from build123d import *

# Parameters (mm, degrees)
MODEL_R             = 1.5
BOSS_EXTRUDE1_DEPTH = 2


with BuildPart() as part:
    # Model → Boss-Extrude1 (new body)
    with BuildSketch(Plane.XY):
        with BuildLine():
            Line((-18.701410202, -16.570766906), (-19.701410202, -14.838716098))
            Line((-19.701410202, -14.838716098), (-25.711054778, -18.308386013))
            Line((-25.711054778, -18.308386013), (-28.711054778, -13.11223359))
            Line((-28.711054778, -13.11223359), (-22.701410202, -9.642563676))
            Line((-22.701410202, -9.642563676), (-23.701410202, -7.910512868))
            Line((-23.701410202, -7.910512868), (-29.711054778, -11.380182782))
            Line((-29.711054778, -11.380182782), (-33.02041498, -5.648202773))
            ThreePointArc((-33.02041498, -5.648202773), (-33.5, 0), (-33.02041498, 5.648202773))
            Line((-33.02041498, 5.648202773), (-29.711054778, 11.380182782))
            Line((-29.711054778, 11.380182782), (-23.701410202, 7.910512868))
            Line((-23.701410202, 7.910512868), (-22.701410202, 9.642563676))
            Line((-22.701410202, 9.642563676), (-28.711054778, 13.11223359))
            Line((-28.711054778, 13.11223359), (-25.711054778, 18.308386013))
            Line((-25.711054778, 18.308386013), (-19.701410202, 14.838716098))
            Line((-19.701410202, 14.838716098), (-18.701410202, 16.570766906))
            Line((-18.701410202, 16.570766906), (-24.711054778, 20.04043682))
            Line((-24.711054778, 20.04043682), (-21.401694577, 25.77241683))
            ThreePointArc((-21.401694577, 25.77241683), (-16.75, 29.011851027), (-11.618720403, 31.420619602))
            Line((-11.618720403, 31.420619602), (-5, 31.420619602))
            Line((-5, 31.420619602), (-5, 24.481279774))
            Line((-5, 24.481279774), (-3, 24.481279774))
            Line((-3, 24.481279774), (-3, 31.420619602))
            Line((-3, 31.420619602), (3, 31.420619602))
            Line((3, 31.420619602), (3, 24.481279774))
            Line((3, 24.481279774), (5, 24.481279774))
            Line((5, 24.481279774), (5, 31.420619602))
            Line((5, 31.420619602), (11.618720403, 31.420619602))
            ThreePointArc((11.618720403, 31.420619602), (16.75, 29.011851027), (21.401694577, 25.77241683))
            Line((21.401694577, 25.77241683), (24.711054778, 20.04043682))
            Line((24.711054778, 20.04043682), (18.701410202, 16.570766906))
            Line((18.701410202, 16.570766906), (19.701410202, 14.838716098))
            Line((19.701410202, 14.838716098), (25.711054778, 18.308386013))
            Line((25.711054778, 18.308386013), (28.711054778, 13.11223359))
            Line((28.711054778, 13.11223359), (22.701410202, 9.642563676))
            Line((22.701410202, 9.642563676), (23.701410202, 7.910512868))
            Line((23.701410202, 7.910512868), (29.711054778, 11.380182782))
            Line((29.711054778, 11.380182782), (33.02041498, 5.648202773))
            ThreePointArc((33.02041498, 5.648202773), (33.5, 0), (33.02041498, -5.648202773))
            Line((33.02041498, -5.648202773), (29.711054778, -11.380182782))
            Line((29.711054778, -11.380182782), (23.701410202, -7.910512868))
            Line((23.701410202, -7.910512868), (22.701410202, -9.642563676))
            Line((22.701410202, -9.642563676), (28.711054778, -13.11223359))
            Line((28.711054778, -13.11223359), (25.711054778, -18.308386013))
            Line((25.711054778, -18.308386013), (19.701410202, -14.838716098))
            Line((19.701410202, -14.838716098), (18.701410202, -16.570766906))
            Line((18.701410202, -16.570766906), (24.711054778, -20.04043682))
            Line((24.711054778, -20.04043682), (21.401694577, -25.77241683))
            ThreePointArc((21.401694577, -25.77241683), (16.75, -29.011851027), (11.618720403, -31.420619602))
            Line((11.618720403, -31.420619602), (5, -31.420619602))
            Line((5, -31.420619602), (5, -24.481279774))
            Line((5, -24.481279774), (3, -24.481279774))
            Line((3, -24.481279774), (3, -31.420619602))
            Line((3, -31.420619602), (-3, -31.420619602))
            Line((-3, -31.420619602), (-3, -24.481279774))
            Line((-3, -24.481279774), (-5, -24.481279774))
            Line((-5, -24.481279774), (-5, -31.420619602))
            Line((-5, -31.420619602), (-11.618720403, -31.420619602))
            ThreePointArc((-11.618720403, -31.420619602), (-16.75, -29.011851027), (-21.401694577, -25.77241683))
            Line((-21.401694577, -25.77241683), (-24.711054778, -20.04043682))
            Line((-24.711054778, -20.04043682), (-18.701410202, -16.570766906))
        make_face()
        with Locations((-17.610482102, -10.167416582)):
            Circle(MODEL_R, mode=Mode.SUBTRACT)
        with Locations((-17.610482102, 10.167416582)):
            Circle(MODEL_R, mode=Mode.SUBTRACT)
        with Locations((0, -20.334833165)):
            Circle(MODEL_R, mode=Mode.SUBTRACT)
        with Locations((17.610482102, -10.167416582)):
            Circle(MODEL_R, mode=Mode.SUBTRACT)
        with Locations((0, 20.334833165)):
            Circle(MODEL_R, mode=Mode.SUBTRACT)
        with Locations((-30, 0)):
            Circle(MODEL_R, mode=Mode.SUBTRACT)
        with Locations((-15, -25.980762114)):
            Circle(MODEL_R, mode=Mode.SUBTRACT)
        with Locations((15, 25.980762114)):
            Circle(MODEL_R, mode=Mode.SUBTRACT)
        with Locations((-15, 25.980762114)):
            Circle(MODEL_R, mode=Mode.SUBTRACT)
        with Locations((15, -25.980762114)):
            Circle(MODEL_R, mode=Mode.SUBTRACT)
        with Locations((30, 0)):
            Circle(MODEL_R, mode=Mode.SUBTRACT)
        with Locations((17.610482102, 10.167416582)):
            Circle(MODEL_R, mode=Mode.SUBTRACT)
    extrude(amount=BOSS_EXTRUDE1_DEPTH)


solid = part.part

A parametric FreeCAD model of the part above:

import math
import FreeCAD as App
import Part
import Sketcher
Q = App.Units.Quantity

doc = App.newDocument("Part")
body = doc.addObject("PartDesign::Body", "Body")

sketch1 = body.newObject("Sketcher::SketchObject", "Sketch")
sketch1.AttachmentSupport = (doc.getObject("XY_Plane"), [""])
sketch1.MapMode = "FlatFace"
sketch1.addGeometry([
    Part.LineSegment(App.Vector(-19.70141, -14.838716, 0), App.Vector(-18.70141, -16.570767, 0)),
    Part.LineSegment(App.Vector(-18.70141, -16.570767, 0), App.Vector(-24.711055, -20.040437, 0)),
    Part.LineSegment(App.Vector(-24.711055, -20.040437, 0), App.Vector(-21.401695, -25.772417, 0)),
    Part.ArcOfCircle(Part.Circle(App.Vector(0, 0, 0), App.Vector(0, 0, 1), 33.5), math.radians(-129.706608), math.radians(-110.293392)),
    Part.LineSegment(App.Vector(-11.61872, -31.42062, 0), App.Vector(-5, -31.42062, 0)),
    Part.LineSegment(App.Vector(-5, -31.42062, 0), App.Vector(-5, -24.48128, 0)),
    Part.LineSegment(App.Vector(-5, -24.48128, 0), App.Vector(-3, -24.48128, 0)),
    Part.LineSegment(App.Vector(-3, -24.48128, 0), App.Vector(-3, -31.42062, 0)),
    Part.LineSegment(App.Vector(-3, -31.42062, 0), App.Vector(3, -31.42062, 0)),
    Part.LineSegment(App.Vector(3, -31.42062, 0), App.Vector(3, -24.48128, 0)),
    Part.LineSegment(App.Vector(3, -24.48128, 0), App.Vector(5, -24.48128, 0)),
    Part.LineSegment(App.Vector(5, -24.48128, 0), App.Vector(5, -31.42062, 0)),
    Part.LineSegment(App.Vector(5, -31.42062, 0), App.Vector(11.61872, -31.42062, 0)),
    Part.ArcOfCircle(Part.Circle(App.Vector(0, 0, 0), App.Vector(0, 0, 1), 33.5), math.radians(-69.706608), math.radians(-50.293392)),
    Part.LineSegment(App.Vector(21.401695, -25.772417, 0), App.Vector(24.711055, -20.040437, 0)),
    Part.LineSegment(App.Vector(24.711055, -20.040437, 0), App.Vector(18.70141, -16.570767, 0)),
    Part.LineSegment(App.Vector(18.70141, -16.570767, 0), App.Vector(19.70141, -14.838716, 0)),
    Part.LineSegment(App.Vector(19.70141, -14.838716, 0), App.Vector(25.711055, -18.308386, 0)),
    Part.LineSegment(App.Vector(25.711055, -18.308386, 0), App.Vector(28.711055, -13.112234, 0)),
    Part.LineSegment(App.Vector(28.711055, -13.112234, 0), App.Vector(22.70141, -9.642564, 0)),
    Part.LineSegment(App.Vector(22.70141, -9.642564, 0), App.Vector(23.70141, -7.910513, 0)),
    Part.LineSegment(App.Vector(23.70141, -7.910513, 0), App.Vector(29.711055, -11.380183, 0)),
    Part.LineSegment(App.Vector(29.711055, -11.380183, 0), App.Vector(33.020415, -5.648203, 0)),
    Part.ArcOfCircle(Part.Circle(App.Vector(0, 0, 0), App.Vector(0, 0, 1), 33.5), math.radians(-9.706608), math.radians(9.706608)),
    Part.LineSegment(App.Vector(33.020415, 5.648203, 0), App.Vector(29.711055, 11.380183, 0)),
    Part.LineSegment(App.Vector(29.711055, 11.380183, 0), App.Vector(23.70141, 7.910513, 0)),
    Part.LineSegment(App.Vector(23.70141, 7.910513, 0), App.Vector(22.70141, 9.642564, 0)),
    Part.LineSegment(App.Vector(22.70141, 9.642564, 0), App.Vector(28.711055, 13.112234, 0)),
    Part.LineSegment(App.Vector(28.711055, 13.112234, 0), App.Vector(25.711055, 18.308386, 0)),
    Part.LineSegment(App.Vector(25.711055, 18.308386, 0), App.Vector(19.70141, 14.838716, 0)),
    Part.LineSegment(App.Vector(19.70141, 14.838716, 0), App.Vector(18.70141, 16.570767, 0)),
    Part.LineSegment(App.Vector(18.70141, 16.570767, 0), App.Vector(24.711055, 20.040437, 0)),
    Part.LineSegment(App.Vector(24.711055, 20.040437, 0), App.Vector(21.401695, 25.772417, 0)),
    Part.ArcOfCircle(Part.Circle(App.Vector(0, 0, 0), App.Vector(0, 0, 1), 33.5), math.radians(50.293392), math.radians(69.706608)),
    Part.LineSegment(App.Vector(11.61872, 31.42062, 0), App.Vector(5, 31.42062, 0)),
    Part.LineSegment(App.Vector(5, 31.42062, 0), App.Vector(5, 24.48128, 0)),
    Part.LineSegment(App.Vector(5, 24.48128, 0), App.Vector(3, 24.48128, 0)),
    Part.LineSegment(App.Vector(3, 24.48128, 0), App.Vector(3, 31.42062, 0)),
    Part.LineSegment(App.Vector(3, 31.42062, 0), App.Vector(-3, 31.42062, 0)),
    Part.LineSegment(App.Vector(-3, 31.42062, 0), App.Vector(-3, 24.48128, 0)),
    Part.LineSegment(App.Vector(-3, 24.48128, 0), App.Vector(-5, 24.48128, 0)),
    Part.LineSegment(App.Vector(-5, 24.48128, 0), App.Vector(-5, 31.42062, 0)),
    Part.LineSegment(App.Vector(-5, 31.42062, 0), App.Vector(-11.61872, 31.42062, 0)),
    Part.ArcOfCircle(Part.Circle(App.Vector(0, 0, 0), App.Vector(0, 0, 1), 33.5), math.radians(110.293392), math.radians(129.706608)),
    Part.LineSegment(App.Vector(-21.401695, 25.772417, 0), App.Vector(-24.711055, 20.040437, 0)),
    Part.LineSegment(App.Vector(-24.711055, 20.040437, 0), App.Vector(-18.70141, 16.570767, 0)),
    Part.LineSegment(App.Vector(-18.70141, 16.570767, 0), App.Vector(-19.70141, 14.838716, 0)),
    Part.LineSegment(App.Vector(-19.70141, 14.838716, 0), App.Vector(-25.711055, 18.308386, 0)),
    Part.LineSegment(App.Vector(-25.711055, 18.308386, 0), App.Vector(-28.711055, 13.112234, 0)),
    Part.LineSegment(App.Vector(-28.711055, 13.112234, 0), App.Vector(-22.70141, 9.642564, 0)),
    Part.LineSegment(App.Vector(-22.70141, 9.642564, 0), App.Vector(-23.70141, 7.910513, 0)),
    Part.LineSegment(App.Vector(-23.70141, 7.910513, 0), App.Vector(-29.711055, 11.380183, 0)),
    Part.LineSegment(App.Vector(-29.711055, 11.380183, 0), App.Vector(-33.020415, 5.648203, 0)),
    Part.ArcOfCircle(Part.Circle(App.Vector(0, 0, 0), App.Vector(0, 0, 1), 33.5), math.radians(170.293392), math.radians(189.706608)),
    Part.LineSegment(App.Vector(-33.020415, -5.648203, 0), App.Vector(-29.711055, -11.380183, 0)),
    Part.LineSegment(App.Vector(-29.711055, -11.380183, 0), App.Vector(-23.70141, -7.910513, 0)),
    Part.LineSegment(App.Vector(-23.70141, -7.910513, 0), App.Vector(-22.70141, -9.642564, 0)),
    Part.LineSegment(App.Vector(-22.70141, -9.642564, 0), App.Vector(-28.711055, -13.112234, 0)),
    Part.LineSegment(App.Vector(-28.711055, -13.112234, 0), App.Vector(-25.711055, -18.308386, 0)),
    Part.LineSegment(App.Vector(-25.711055, -18.308386, 0), App.Vector(-19.70141, -14.838716, 0)),
    Part.Circle(App.Vector(15, -25.980762, 0), App.Vector(0, 0, 1), 1.5),
    Part.Circle(App.Vector(17.610482, -10.167417, 0), App.Vector(0, 0, 1), 1.5),
    Part.Circle(App.Vector(-15, -25.980762, 0), App.Vector(0, 0, 1), 1.5),
    Part.Circle(App.Vector(0, -20.334833, 0), App.Vector(0, 0, 1), 1.5),
    Part.Circle(App.Vector(-17.610482, -10.167417, 0), App.Vector(0, 0, 1), 1.5),
    Part.Circle(App.Vector(30, 0, 0), App.Vector(0, 0, 1), 1.5),
    Part.Circle(App.Vector(17.610482, 10.167417, 0), App.Vector(0, 0, 1), 1.5),
    Part.Circle(App.Vector(15, 25.980762, 0), App.Vector(0, 0, 1), 1.5),
    Part.Circle(App.Vector(-30, 0, 0), App.Vector(0, 0, 1), 1.5),
    Part.Circle(App.Vector(-17.610482, 10.167417, 0), App.Vector(0, 0, 1), 1.5),
    Part.Circle(App.Vector(0, 20.334833, 0), App.Vector(0, 0, 1), 1.5),
    Part.Circle(App.Vector(-15, 25.980762, 0), App.Vector(0, 0, 1), 1.5),
], False)
sketch1.addConstraint([
    Sketcher.Constraint("Coincident", 0, 2, 1, 1),
    Sketcher.Constraint("Coincident", 1, 2, 2, 1),
    Sketcher.Constraint("Coincident", 2, 2, 3, 1),
    Sketcher.Constraint("Coincident", 3, 2, 4, 1),
    Sketcher.Constraint("Coincident", 4, 2, 5, 1),
    Sketcher.Constraint("Coincident", 5, 2, 6, 1),
    Sketcher.Constraint("Coincident", 6, 2, 7, 1),
    Sketcher.Constraint("Coincident", 7, 2, 8, 1),
    Sketcher.Constraint("Coincident", 8, 2, 9, 1),
    Sketcher.Constraint("Coincident", 9, 2, 10, 1),
    Sketcher.Constraint("Coincident", 10, 2, 11, 1),
    Sketcher.Constraint("Coincident", 11, 2, 12, 1),
    Sketcher.Constraint("Coincident", 12, 2, 13, 1),
    Sketcher.Constraint("Coincident", 13, 2, 14, 1),
    Sketcher.Constraint("Coincident", 14, 2, 15, 1),
    Sketcher.Constraint("Coincident", 15, 2, 16, 1),
    Sketcher.Constraint("Coincident", 16, 2, 17, 1),
    Sketcher.Constraint("Coincident", 17, 2, 18, 1),
    Sketcher.Constraint("Coincident", 18, 2, 19, 1),
    Sketcher.Constraint("Coincident", 19, 2, 20, 1),
    Sketcher.Constraint("Coincident", 20, 2, 21, 1),
    Sketcher.Constraint("Coincident", 21, 2, 22, 1),
    Sketcher.Constraint("Coincident", 22, 2, 23, 1),
    Sketcher.Constraint("Coincident", 23, 2, 24, 1),
    Sketcher.Constraint("Coincident", 24, 2, 25, 1),
    Sketcher.Constraint("Coincident", 25, 2, 26, 1),
    Sketcher.Constraint("Coincident", 26, 2, 27, 1),
    Sketcher.Constraint("Coincident", 27, 2, 28, 1),
    Sketcher.Constraint("Coincident", 28, 2, 29, 1),
    Sketcher.Constraint("Coincident", 29, 2, 30, 1),
    Sketcher.Constraint("Coincident", 30, 2, 31, 1),
    Sketcher.Constraint("Coincident", 31, 2, 32, 1),
    Sketcher.Constraint("Coincident", 32, 2, 33, 1),
    Sketcher.Constraint("Coincident", 33, 2, 34, 1),
    Sketcher.Constraint("Coincident", 34, 2, 35, 1),
    Sketcher.Constraint("Coincident", 35, 2, 36, 1),
    Sketcher.Constraint("Coincident", 36, 2, 37, 1),
    Sketcher.Constraint("Coincident", 37, 2, 38, 1),
    Sketcher.Constraint("Coincident", 38, 2, 39, 1),
    Sketcher.Constraint("Coincident", 39, 2, 40, 1),
    Sketcher.Constraint("Coincident", 40, 2, 41, 1),
    Sketcher.Constraint("Coincident", 41, 2, 42, 1),
    Sketcher.Constraint("Coincident", 42, 2, 43, 1),
    Sketcher.Constraint("Coincident", 43, 2, 44, 1),
    Sketcher.Constraint("Coincident", 44, 2, 45, 1),
    Sketcher.Constraint("Coincident", 45, 2, 46, 1),
    Sketcher.Constraint("Coincident", 46, 2, 47, 1),
    Sketcher.Constraint("Coincident", 47, 2, 48, 1),
    Sketcher.Constraint("Coincident", 48, 2, 49, 1),
    Sketcher.Constraint("Coincident", 49, 2, 50, 1),
    Sketcher.Constraint("Coincident", 50, 2, 51, 1),
    Sketcher.Constraint("Coincident", 51, 2, 52, 1),
    Sketcher.Constraint("Coincident", 52, 2, 53, 1),
    Sketcher.Constraint("Coincident", 53, 2, 54, 1),
    Sketcher.Constraint("Coincident", 54, 2, 55, 1),
    Sketcher.Constraint("Coincident", 55, 2, 56, 1),
    Sketcher.Constraint("Coincident", 56, 2, 57, 1),
    Sketcher.Constraint("Coincident", 57, 2, 58, 1),
    Sketcher.Constraint("Coincident", 58, 2, 59, 1),
    Sketcher.Constraint("Coincident", 59, 2, 0, 1),
    Sketcher.Constraint("Horizontal", 4),
    Sketcher.Constraint("Vertical", 5),
    Sketcher.Constraint("Horizontal", 6),
    Sketcher.Constraint("Vertical", 7),
    Sketcher.Constraint("Horizontal", 8),
    Sketcher.Constraint("Vertical", 9),
    Sketcher.Constraint("Horizontal", 10),
    Sketcher.Constraint("Vertical", 11),
    Sketcher.Constraint("Horizontal", 12),
    Sketcher.Constraint("Horizontal", 34),
    Sketcher.Constraint("Vertical", 35),
    Sketcher.Constraint("Horizontal", 36),
    Sketcher.Constraint("Vertical", 37),
    Sketcher.Constraint("Horizontal", 38),
    Sketcher.Constraint("Vertical", 39),
    Sketcher.Constraint("Horizontal", 40),
    Sketcher.Constraint("Vertical", 41),
    Sketcher.Constraint("Horizontal", 42),
    Sketcher.Constraint("Coincident", 3, 3, -1, 1),
    Sketcher.Constraint("Coincident", 13, 3, -1, 1),
    Sketcher.Constraint("Coincident", 23, 3, -1, 1),
    Sketcher.Constraint("Coincident", 33, 3, -1, 1),
    Sketcher.Constraint("Coincident", 43, 3, -1, 1),
    Sketcher.Constraint("Coincident", 53, 3, -1, 1),
    Sketcher.Constraint("Equal", 3, 13),
    Sketcher.Constraint("Equal", 13, 23),
    Sketcher.Constraint("Equal", 23, 33),
    Sketcher.Constraint("Equal", 33, 43),
    Sketcher.Constraint("Equal", 43, 53),
    Sketcher.Constraint("Equal", 60, 61),
    Sketcher.Constraint("Equal", 61, 62),
    Sketcher.Constraint("Equal", 62, 63),
    Sketcher.Constraint("Equal", 63, 64),
    Sketcher.Constraint("Equal", 64, 65),
    Sketcher.Constraint("Equal", 65, 66),
    Sketcher.Constraint("Equal", 66, 67),
    Sketcher.Constraint("Equal", 67, 68),
    Sketcher.Constraint("Equal", 68, 69),
    Sketcher.Constraint("Equal", 69, 70),
    Sketcher.Constraint("Equal", 70, 71),
    Sketcher.Constraint("Symmetric", 64, 3, 66, 3, -1, 1),
    Sketcher.Constraint("Symmetric", 62, 3, 67, 3, -1, 1),
    Sketcher.Constraint("Symmetric", 65, 3, 68, 3, -1, 1),
    Sketcher.Constraint("Symmetric", 61, 3, 69, 3, -1, 1),
    Sketcher.Constraint("Symmetric", 63, 3, 70, 3, -1, 1),
    Sketcher.Constraint("Symmetric", 60, 3, 71, 3, -1, 1),
    Sketcher.Constraint("Symmetric", 0, 2, 30, 2, -1, 1),
    Sketcher.Constraint("Symmetric", 1, 2, 31, 2, -1, 1),
    Sketcher.Constraint("Symmetric", 4, 2, 34, 2, -1, 1),
    Sketcher.Constraint("Symmetric", 6, 2, 36, 2, -1, 1),
    Sketcher.Constraint("Symmetric", 8, 2, 38, 2, -1, 1),
    Sketcher.Constraint("Symmetric", 10, 2, 40, 2, -1, 1),
    Sketcher.Constraint("Symmetric", 14, 2, 44, 2, -1, 1),
    Sketcher.Constraint("Symmetric", 15, 2, 45, 2, -1, 1),
    Sketcher.Constraint("Symmetric", 16, 2, 46, 2, -1, 1),
    Sketcher.Constraint("Symmetric", 17, 2, 47, 2, -1, 1),
    Sketcher.Constraint("Symmetric", 18, 2, 48, 2, -1, 1),
    Sketcher.Constraint("Symmetric", 19, 2, 49, 2, -1, 1),
    Sketcher.Constraint("Symmetric", 20, 2, 50, 2, -1, 1),
    Sketcher.Constraint("Symmetric", 21, 2, 51, 2, -1, 1),
    Sketcher.Constraint("Symmetric", 24, 2, 54, 2, -1, 1),
    Sketcher.Constraint("Symmetric", 25, 2, 55, 2, -1, 1),
    Sketcher.Constraint("Symmetric", 26, 2, 56, 2, -1, 1),
    Sketcher.Constraint("Symmetric", 27, 2, 57, 2, -1, 1),
    Sketcher.Constraint("Symmetric", 28, 2, 58, 2, -1, 1),
    Sketcher.Constraint("Symmetric", 29, 2, 59, 2, -1, 1),
    Sketcher.Constraint("Symmetric", 60, 3, 62, 3, -2),
    Sketcher.Constraint("Symmetric", 61, 3, 64, 3, -2),
    Sketcher.Constraint("Symmetric", 6, 2, 9, 2, -2),
    Sketcher.Constraint("Symmetric", 4, 2, 11, 2, -2),
    Sketcher.Constraint("Symmetric", 1, 2, 14, 2, -2),
    Sketcher.Constraint("Symmetric", 0, 2, 15, 2, -2),
    Sketcher.Constraint("Symmetric", 29, 2, 46, 2, -2),
    Sketcher.Constraint("Symmetric", 28, 2, 47, 2, -2),
    Sketcher.Constraint("Symmetric", 27, 2, 48, 2, -2),
    Sketcher.Constraint("Symmetric", 26, 2, 49, 2, -2),
    Sketcher.Constraint("Symmetric", 25, 2, 50, 2, -2),
    Sketcher.Constraint("Symmetric", 24, 2, 51, 2, -2),
    Sketcher.Constraint("PointOnObject", 63, 3, -2),
    Sketcher.Constraint("PointOnObject", 65, 3, -1),
    Sketcher.Constraint("Perpendicular", 0, 1),
    Sketcher.Constraint("Perpendicular", 1, 2),
    Sketcher.Constraint("Perpendicular", 14, 15),
    Sketcher.Constraint("Perpendicular", 16, 17),
    Sketcher.Constraint("Perpendicular", 17, 18),
    Sketcher.Constraint("Perpendicular", 18, 19),
    Sketcher.Constraint("Perpendicular", 19, 20),
    Sketcher.Constraint("Perpendicular", 20, 21),
    Sketcher.Constraint("Perpendicular", 21, 22),
    Sketcher.Constraint("Parallel", 2, 24),
    Sketcher.Constraint("Perpendicular", 31, 32),
    Sketcher.Constraint("Parallel", 22, 44),
    Sketcher.Constraint("Perpendicular", 51, 52),
    Sketcher.Constraint("Parallel", 32, 54),
    Sketcher.Constraint("Horizontal", 4, 2, 7, 2),
    Sketcher.Constraint("Horizontal", 38, 2, 41, 2),
    Sketcher.Constraint("Equal", 15, 17),
    Sketcher.Constraint("Equal", 17, 19),
    Sketcher.Constraint("Equal", 16, 20),
    Sketcher.Constraint("Equal", 19, 21),
    Sketcher.Constraint("Equal", 14, 22),
    Sketcher.Constraint("Diameter", 60, 3.0),
    Sketcher.Constraint("Radius", 3, 33.5),
    Sketcher.Constraint("DistanceX", 6, 1, 6, 2, 2.0),
    Sketcher.Constraint("DistanceX", 8, 1, 8, 2, 6.0),
    Sketcher.Constraint("Angle", 0, Q("-60 deg")),
    Sketcher.Constraint("Distance", 0, 2.0),
    Sketcher.Constraint("Distance", 18, 6.0),
    Sketcher.Constraint("DistanceX", -1, 1, 60, 3, 15.0),
    Sketcher.Constraint("DistanceX", -1, 1, 65, 3, 30.0),
    Sketcher.Constraint("DistanceX", 4, 1, 4, 2, 6.61872),
    Sketcher.Constraint("DistanceY", 5, 1, 5, 2, 6.93934),
    Sketcher.Constraint("Distance", 1, 6.93934),
    Sketcher.Constraint("Distance", 2, 6.61872),
    Sketcher.Constraint("DistanceY", 60, 3, -1, 1, 25.980762),
    Sketcher.Constraint("DistanceX", -1, 1, 61, 3, 17.610482),
    Sketcher.Constraint("DistanceY", 61, 3, -1, 1, 10.167417),
    Sketcher.Constraint("DistanceY", 63, 3, -1, 1, 20.334833),
])
pad1 = body.newObject("PartDesign::Pad", "Pad")
pad1.Profile = sketch1
pad1.Length = 2

doc.recompute()
